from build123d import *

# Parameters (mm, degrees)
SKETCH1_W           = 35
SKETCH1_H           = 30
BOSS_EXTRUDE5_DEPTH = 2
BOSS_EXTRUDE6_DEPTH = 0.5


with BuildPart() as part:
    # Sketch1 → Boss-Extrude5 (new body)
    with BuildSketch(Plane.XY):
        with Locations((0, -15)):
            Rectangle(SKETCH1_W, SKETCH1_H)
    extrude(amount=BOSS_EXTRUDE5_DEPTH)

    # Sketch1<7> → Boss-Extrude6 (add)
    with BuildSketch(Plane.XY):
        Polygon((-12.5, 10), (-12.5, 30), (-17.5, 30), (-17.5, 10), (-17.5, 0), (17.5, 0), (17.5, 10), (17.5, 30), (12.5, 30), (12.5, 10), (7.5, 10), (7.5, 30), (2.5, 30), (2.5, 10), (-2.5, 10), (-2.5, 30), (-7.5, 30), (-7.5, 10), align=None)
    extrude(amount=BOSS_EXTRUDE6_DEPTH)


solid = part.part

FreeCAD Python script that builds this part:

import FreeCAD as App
import Part
import Sketcher

V = App.Vector


def add_polygon(sketch, points):
    """Adds a closed chain of lines whose ends are joined by coincident constraints."""
    first, n = sketch.GeometryCount, len(points)
    for a, b in zip(points, points[1:] + points[:1]):
        sketch.addGeometry(Part.LineSegment(App.Vector(*a, 0), App.Vector(*b, 0)), False)
    for i in range(n):
        sketch.addConstraint(Sketcher.Constraint("Coincident", first + i, 2, first + (i + 1) % n, 1))

doc = App.newDocument("Part")
params = doc.addObject("Spreadsheet::Sheet", "Params")
for row, (alias, value) in enumerate([
    ("sketch1_width", "35 mm"),
    ("sketch1_height", "30 mm"),
    ("pad1_length", "2 mm"),
    ("sketch2_width", "5 mm"),
    ("sketch2_height", "20 mm"),
    ("sketch2_height2", "30 mm"),
    ("pad2_length", "0.5 mm"),
], start=1):
    params.set(f"A{row}", alias)
    params.set(f"B{row}", "=" + value)
    params.setAlias(f"B{row}", alias)

body = doc.addObject("PartDesign::Body", "Body")

sketch1 = body.newObject("Sketcher::SketchObject", "Sketch")
sketch1.AttachmentSupport = (doc.getObject("XY_Plane"), [""])
sketch1.MapMode = "FlatFace"
add_polygon(sketch1, [(-18, 0), (-18, -30), (18, -30), (18, 0)])
sketch1.addConstraint([
    Sketcher.Constraint("Vertical", 0),
    Sketcher.Constraint("Horizontal", 1),
    Sketcher.Constraint("Vertical", 2),
    Sketcher.Constraint("Horizontal", 3),
    Sketcher.Constraint("Symmetric", 2, 2, 3, 2, -1, 1),
    Sketcher.Constraint("DistanceX", 1, 1, 1, 2, 35.0),
    Sketcher.Constraint("DistanceY", 0, 2, 0, 1, 30.0),
])
sketch1.setExpression("Constraints[9]", "Params.sketch1_width")
sketch1.setExpression("Constraints[10]", "Params.sketch1_height")
pad1 = body.newObject("PartDesign::Pad", "Pad")
pad1.Profile = sketch1
pad1.setExpression("Length", "Params.pad1_length")

sketch2 = body.newObject("Sketcher::SketchObject", "Sketch001")
sketch2.AttachmentSupport = (doc.getObject("XY_Plane"), [""])
sketch2.MapMode = "FlatFace"
add_polygon(sketch2, [(-12, 10), (-12, 30), (-18, 30), (-18, 0), (18, 0), (18, 30), (12, 30), (12, 10), (8, 10), (8, 30), (2, 30), (2, 10), (-2, 10), (-2, 30), (-8, 30), (-8, 10)])
sketch2.addConstraint([
    Sketcher.Constraint("Vertical", 0),
    Sketcher.Constraint("Horizontal", 1),
    Sketcher.Constraint("Vertical", 2),
    Sketcher.Constraint("Horizontal", 3),
    Sketcher.Constraint("Vertical", 4),
    Sketcher.Constraint("Horizontal", 5),
    Sketcher.Constraint("Vertical", 6),
    Sketcher.Constraint("Horizontal", 7),
    Sketcher.Constraint("Vertical", 8),
    Sketcher.Constraint("Horizontal", 9),
    Sketcher.Constraint("Vertical", 10),
    Sketcher.Constraint("Horizontal", 11),
    Sketcher.Constraint("Vertical", 12),
    Sketcher.Constraint("Horizontal", 13),
    Sketcher.Constraint("Vertical", 14),
    Sketcher.Constraint("Horizontal", 15),
    Sketcher.Constraint("Symmetric", 2, 2, 3, 2, -1, 1),
    Sketcher.Constraint("Symmetric", 0, 2, 5, 2, -2),
    Sketcher.Constraint("Symmetric", 9, 2, 12, 2, -2),
    Sketcher.Constraint("Symmetric", 7, 2, 14, 2, -2),
    Sketcher.Constraint("Horizontal", 5, 2, 8, 2),
    Sketcher.Constraint("Horizontal", 7, 2, 10, 2),
    Sketcher.Constraint("Equal", 5, 7),
    Sketcher.Constraint("Equal", 7, 9),
    Sketcher.Constraint("Equal", 9, 11),
    Sketcher.Constraint("DistanceX", 1, 2, 1, 1, 5.0),
    Sketcher.Constraint("DistanceY", 0, 1, 0, 2, 20.0),
    Sketcher.Constraint("DistanceY", 2, 2, 2, 1, 30.0),
])
sketch2.setExpression("Constraints[41]", "Params.sketch2_width")
sketch2.setExpression("Constraints[42]", "Params.sketch2_height")
sketch2.setExpression("Constraints[43]", "Params.sketch2_height2")
pad2 = body.newObject("PartDesign::Pad", "Pad001")
pad2.Profile = sketch2
pad2.setExpression("Length", "Params.pad2_length")

doc.recompute()
